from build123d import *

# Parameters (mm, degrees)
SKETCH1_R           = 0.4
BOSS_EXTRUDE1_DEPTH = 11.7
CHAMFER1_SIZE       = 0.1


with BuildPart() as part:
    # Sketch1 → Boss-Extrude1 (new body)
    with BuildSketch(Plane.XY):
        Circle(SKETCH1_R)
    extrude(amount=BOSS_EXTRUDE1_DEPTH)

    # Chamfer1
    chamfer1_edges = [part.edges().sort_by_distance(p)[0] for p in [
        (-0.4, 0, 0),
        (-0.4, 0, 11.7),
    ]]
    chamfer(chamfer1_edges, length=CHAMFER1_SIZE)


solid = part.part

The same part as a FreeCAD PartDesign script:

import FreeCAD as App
import Part
import Sketcher


def edges_at(feature, points):
    """Names of the edges that pass closest to the given points."""
    edges = feature.Shape.Edges
    near = lambda p: min(range(len(edges)), key=lambda i: edges[i].distToShape(Part.Vertex(*p))[0])
    return sorted({f"Edge{near(p) + 1}" for p in points})

doc = App.newDocument("Part")
body = doc.addObject("PartDesign::Body", "Body")

# Sketch on XY plane
sketch1 = body.newObject("Sketcher::SketchObject", "Sketch")
sketch1.AttachmentSupport = (doc.getObject("XY_Plane"), [""])
sketch1.MapMode = "FlatFace"
sketch1.addGeometry(Part.Circle(App.Vector(0, 0, 0), App.Vector(0, 0, 1), 0.4), False)
sketch1.addConstraint(Sketcher.Constraint("Coincident", 0, 3, -1, 1))
sketch1.addConstraint(Sketcher.Constraint("Diameter", 0, 0.8))
pad1 = body.newObject("PartDesign::Pad", "Pad")
pad1.Profile = sketch1
pad1.Length = 11.7
doc.recompute()

chamfer = body.newObject("PartDesign::Chamfer", "Chamfer")
chamfer.Base = (pad1, edges_at(pad1, [(-0.4, 0, 0), (-0.4, 0, 11.7)]))
chamfer.Size = 0.1

doc.recompute()
